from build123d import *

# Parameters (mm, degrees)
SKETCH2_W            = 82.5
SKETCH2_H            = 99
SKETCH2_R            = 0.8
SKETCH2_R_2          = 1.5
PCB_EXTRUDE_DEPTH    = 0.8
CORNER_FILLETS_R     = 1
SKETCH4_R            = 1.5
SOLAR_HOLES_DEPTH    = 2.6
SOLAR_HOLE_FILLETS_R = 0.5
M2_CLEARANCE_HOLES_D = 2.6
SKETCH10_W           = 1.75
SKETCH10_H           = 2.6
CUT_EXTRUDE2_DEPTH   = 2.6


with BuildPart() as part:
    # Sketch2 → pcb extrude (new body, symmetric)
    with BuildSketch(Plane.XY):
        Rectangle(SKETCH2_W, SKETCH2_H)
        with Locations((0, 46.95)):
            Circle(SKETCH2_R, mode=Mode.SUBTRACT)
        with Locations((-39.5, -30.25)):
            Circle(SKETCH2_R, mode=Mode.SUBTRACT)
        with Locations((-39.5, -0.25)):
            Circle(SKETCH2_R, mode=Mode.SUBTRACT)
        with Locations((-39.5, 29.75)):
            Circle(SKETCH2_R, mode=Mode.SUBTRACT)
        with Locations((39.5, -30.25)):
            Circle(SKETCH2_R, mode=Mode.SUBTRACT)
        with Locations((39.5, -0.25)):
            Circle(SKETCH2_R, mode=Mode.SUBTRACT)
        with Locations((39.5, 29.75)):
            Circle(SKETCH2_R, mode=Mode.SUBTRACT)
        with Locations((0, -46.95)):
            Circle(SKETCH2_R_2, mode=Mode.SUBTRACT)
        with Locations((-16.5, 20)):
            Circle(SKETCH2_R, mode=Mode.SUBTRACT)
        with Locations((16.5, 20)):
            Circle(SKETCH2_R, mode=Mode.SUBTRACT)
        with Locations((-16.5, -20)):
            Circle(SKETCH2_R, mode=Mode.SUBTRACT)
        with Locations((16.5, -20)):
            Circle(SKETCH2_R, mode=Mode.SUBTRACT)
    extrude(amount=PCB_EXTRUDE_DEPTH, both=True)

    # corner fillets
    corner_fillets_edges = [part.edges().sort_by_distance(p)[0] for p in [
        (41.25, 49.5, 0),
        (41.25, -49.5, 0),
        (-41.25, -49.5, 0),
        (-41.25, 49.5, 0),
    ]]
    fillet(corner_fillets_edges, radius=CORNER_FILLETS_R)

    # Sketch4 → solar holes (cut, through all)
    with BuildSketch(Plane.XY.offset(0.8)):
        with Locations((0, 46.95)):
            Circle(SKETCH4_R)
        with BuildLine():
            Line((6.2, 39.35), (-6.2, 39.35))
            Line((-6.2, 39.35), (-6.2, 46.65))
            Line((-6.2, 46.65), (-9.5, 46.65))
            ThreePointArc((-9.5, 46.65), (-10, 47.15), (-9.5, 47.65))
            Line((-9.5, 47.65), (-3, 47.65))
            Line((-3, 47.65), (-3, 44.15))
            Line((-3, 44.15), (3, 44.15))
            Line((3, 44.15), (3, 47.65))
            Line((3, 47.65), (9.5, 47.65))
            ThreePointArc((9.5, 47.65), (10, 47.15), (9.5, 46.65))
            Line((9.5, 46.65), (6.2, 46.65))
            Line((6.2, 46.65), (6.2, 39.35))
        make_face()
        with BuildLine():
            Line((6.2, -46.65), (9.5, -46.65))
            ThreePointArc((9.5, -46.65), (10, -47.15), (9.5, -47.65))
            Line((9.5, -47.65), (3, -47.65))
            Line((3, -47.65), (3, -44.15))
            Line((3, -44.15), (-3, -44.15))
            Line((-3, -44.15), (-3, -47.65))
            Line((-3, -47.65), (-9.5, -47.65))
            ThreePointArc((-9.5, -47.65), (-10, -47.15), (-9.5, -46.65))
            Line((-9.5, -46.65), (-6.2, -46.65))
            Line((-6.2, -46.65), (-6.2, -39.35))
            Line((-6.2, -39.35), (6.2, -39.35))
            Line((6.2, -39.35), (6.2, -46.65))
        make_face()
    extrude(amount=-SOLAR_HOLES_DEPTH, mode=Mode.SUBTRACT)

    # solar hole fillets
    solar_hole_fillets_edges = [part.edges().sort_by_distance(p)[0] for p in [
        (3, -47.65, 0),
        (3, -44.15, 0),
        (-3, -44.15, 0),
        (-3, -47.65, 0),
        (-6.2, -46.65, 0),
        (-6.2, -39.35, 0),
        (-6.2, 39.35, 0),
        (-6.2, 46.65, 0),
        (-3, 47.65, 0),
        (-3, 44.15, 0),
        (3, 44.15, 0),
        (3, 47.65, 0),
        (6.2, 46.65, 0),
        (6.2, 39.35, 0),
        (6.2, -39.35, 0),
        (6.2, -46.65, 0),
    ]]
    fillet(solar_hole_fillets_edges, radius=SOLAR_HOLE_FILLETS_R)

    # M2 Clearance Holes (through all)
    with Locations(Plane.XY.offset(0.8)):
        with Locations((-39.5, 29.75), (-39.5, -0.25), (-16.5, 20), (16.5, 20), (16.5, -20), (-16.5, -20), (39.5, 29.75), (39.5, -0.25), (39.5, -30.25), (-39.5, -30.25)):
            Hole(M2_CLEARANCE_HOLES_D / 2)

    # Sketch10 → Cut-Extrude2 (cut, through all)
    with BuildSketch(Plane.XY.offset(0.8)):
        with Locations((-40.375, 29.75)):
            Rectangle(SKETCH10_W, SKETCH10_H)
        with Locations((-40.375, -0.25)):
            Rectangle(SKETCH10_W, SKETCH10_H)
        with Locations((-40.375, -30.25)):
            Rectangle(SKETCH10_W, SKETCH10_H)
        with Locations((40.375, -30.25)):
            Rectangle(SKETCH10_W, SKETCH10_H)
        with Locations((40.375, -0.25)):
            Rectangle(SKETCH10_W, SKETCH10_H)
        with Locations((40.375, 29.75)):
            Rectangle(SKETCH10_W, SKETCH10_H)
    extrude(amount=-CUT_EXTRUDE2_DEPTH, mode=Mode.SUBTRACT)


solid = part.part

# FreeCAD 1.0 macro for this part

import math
import FreeCAD as App
import Part
import Sketcher


def edges_at(feature, points):
    """Names of the edges that pass closest to the given points."""
    edges = feature.Shape.Edges
    near = lambda p: min(range(len(edges)), key=lambda i: edges[i].distToShape(Part.Vertex(*p))[0])
    return sorted({f"Edge{near(p) + 1}" for p in points})


def add_polygon(sketch, points):
    """Adds a closed chain of lines whose ends are joined by coincident constraints."""
    first, n = sketch.GeometryCount, len(points)
    for a, b in zip(points, points[1:] + points[:1]):
        sketch.addGeometry(Part.LineSegment(App.Vector(*a, 0), App.Vector(*b, 0)), False)
    for i in range(n):
        sketch.addConstraint(Sketcher.Constraint("Coincident", first + i, 2, first + (i + 1) % n, 1))

doc = App.newDocument("Part")
params = doc.addObject("Spreadsheet::Sheet", "Params")
for row, (alias, value) in enumerate([
    ("sketch1_diameter", "3 mm"),
    ("sketch1_diameter2", "1.6 mm"),
    ("sketch1_height", "99 mm"),
    ("sketch1_width", "82.5 mm"),
    ("pad1_length", "1.6 mm"),
    ("fillet_radius", "1 mm"),
    ("sketch2_diameter", "3 mm"),
    ("sketch2_radius", "0.5 mm"),
    ("sketch2_width", "6 mm"),
    ("sketch2_width2", "12.4 mm"),
    ("sketch2_width3", "3.3 mm"),
    ("fillet2_radius", "0.5 mm"),
    ("sketch3_diameter", "2.6 mm"),
    ("hole_diameter", "2.6 mm"),
    ("sketch4_height", "2.6 mm"),
    ("sketch4_width", "1.75 mm"),
], start=1):
    params.set(f"A{row}", alias)
    params.set(f"B{row}", "=" + value)
    params.setAlias(f"B{row}", alias)

body = doc.addObject("PartDesign::Body", "Body")

# Sketch on XY plane
sketch1 = body.newObject("Sketcher::SketchObject", "Sketch")
sketch1.AttachmentSupport = (doc.getObject("XY_Plane"), [""])
sketch1.MapMode = "FlatFace"
add_polygon(sketch1, [(-41.25, 49.5), (-41.25, -49.5), (41.25, -49.5), (41.25, 49.5)])  # lines 0-3
sketch1.addGeometry(Part.Circle(App.Vector(-39.5, -30.25, 0), App.Vector(0, 0, 1), 0.8), False)  # 4
sketch1.addGeometry(Part.Circle(App.Vector(-16.5, -20, 0), App.Vector(0, 0, 1), 0.8), False)  # 5
sketch1.addGeometry(Part.Circle(App.Vector(0, -46.95, 0), App.Vector(0, 0, 1), 1.5), False)  # 6
sketch1.addGeometry(Part.Circle(App.Vector(39.5, -30.25, 0), App.Vector(0, 0, 1), 0.8), False)  # 7
sketch1.addGeometry(Part.Circle(App.Vector(16.5, -20, 0), App.Vector(0, 0, 1), 0.8), False)  # 8
sketch1.addGeometry(Part.Circle(App.Vector(-39.5, -0.25, 0), App.Vector(0, 0, 1), 0.8), False)  # 9
sketch1.addGeometry(Part.Circle(App.Vector(-16.5, 20, 0), App.Vector(0, 0, 1), 0.8), False)  # 10
sketch1.addGeometry(Part.Circle(App.Vector(-39.5, 29.75, 0), App.Vector(0, 0, 1), 0.8), False)  # 11
sketch1.addGeometry(Part.Circle(App.Vector(16.5, 20, 0), App.Vector(0, 0, 1), 0.8), False)  # 12
sketch1.addGeometry(Part.Circle(App.Vector(39.5, -0.25, 0), App.Vector(0, 0, 1), 0.8), False)  # 13
sketch1.addGeometry(Part.Circle(App.Vector(0, 46.95, 0), App.Vector(0, 0, 1), 0.8), False)  # 14
sketch1.addGeometry(Part.Circle(App.Vector(39.5, 29.75, 0), App.Vector(0, 0, 1), 0.8), False)  # 15
sketch1.addConstraint(Sketcher.Constraint("Vertical", 0))
sketch1.addConstraint(Sketcher.Constraint("Horizontal", 1))
sketch1.addConstraint(Sketcher.Constraint("Vertical", 2))
sketch1.addConstraint(Sketcher.Constraint("Horizontal", 3))
sketch1.addConstraint(Sketcher.Constraint("Equal", 4, 5))
sketch1.addConstraint(Sketcher.Constraint("Equal", 5, 7))
sketch1.addConstraint(Sketcher.Constraint("Equal", 7, 8))
sketch1.addConstraint(Sketcher.Constraint("Equal", 8, 9))
sketch1.addConstraint(Sketcher.Constraint("Equal", 9, 10))
sketch1.addConstraint(Sketcher.Constraint("Equal", 10, 11))
sketch1.addConstraint(Sketcher.Constraint("Equal", 11, 12))
sketch1.addConstraint(Sketcher.Constraint("Equal", 12, 13))
sketch1.addConstraint(Sketcher.Constraint("Equal", 13, 14))
sketch1.addConstraint(Sketcher.Constraint("Equal", 14, 15))
sketch1.addConstraint(Sketcher.Constraint("Symmetric", 8, 3, 10, 3, -1, 1))
sketch1.addConstraint(Sketcher.Constraint("Symmetric", 5, 3, 12, 3, -1, 1))
sketch1.addConstraint(Sketcher.Constraint("Symmetric", 6, 3, 14, 3, -1, 1))
sketch1.addConstraint(Sketcher.Constraint("Symmetric", 0, 2, 2, 2, -1, 1))
sketch1.addConstraint(Sketcher.Constraint("Symmetric", 4, 3, 7, 3, -2))
sketch1.addConstraint(Sketcher.Constraint("Symmetric", 5, 3, 8, 3, -2))
sketch1.addConstraint(Sketcher.Constraint("Symmetric", 9, 3, 13, 3, -2))
sketch1.addConstraint(Sketcher.Constraint("Symmetric", 11, 3, 15, 3, -2))
sketch1.addConstraint(Sketcher.Constraint("PointOnObject", 6, 3, -2))
sketch1.addConstraint(Sketcher.Constraint("Vertical", 4, 3, 9, 3))
sketch1.addConstraint(Sketcher.Constraint("Vertical", 9, 3, 11, 3))
sketch1.addConstraint(Sketcher.Constraint("Diameter", 6, 3.0))
sketch1.addConstraint(Sketcher.Constraint("Diameter", 4, 1.6))
sketch1.addConstraint(Sketcher.Constraint("DistanceY", 0, 2, 0, 1, 99.0))
sketch1.addConstraint(Sketcher.Constraint("DistanceX", 1, 1, 1, 2, 82.5))
sketch1.addConstraint(Sketcher.Constraint("DistanceY", 5, 3, -1, 1, 20.0))
sketch1.addConstraint(Sketcher.Constraint("DistanceX", 4, 3, 5, 3, 23.0))
sketch1.addConstraint(Sketcher.Constraint("DistanceX", 5, 3, 7, 3, 56.0))
sketch1.addConstraint(Sketcher.Constraint("DistanceY", 4, 3, 9, 3, 30.0))
sketch1.addConstraint(Sketcher.Constraint("DistanceY", 9, 3, 11, 3, 30.0))
sketch1.addConstraint(Sketcher.Constraint("DistanceY", 6, 3, 4, 3, 16.7))
sketch1.addConstraint(Sketcher.Constraint("DistanceY", 11, 3, 14, 3, 17.2))
sketch1.setExpression("Constraints[29]", "Params.sketch1_diameter")
sketch1.setExpression("Constraints[30]", "Params.sketch1_diameter2")
sketch1.setExpression("Constraints[31]", "Params.sketch1_height")
sketch1.setExpression("Constraints[32]", "Params.sketch1_width")
pad1 = body.newObject("PartDesign::Pad", "Pad")
pad1.Profile = sketch1
pad1.setExpression("Length", "Params.pad1_length")
pad1.Midplane = True
doc.recompute()

fillet = body.newObject("PartDesign::Fillet", "Fillet")
fillet.Base = (pad1, edges_at(pad1, [
    (41.25, 49.5, 0),
    (41.25, -49.5, 0),
    (-41.25, -49.5, 0),
    (-41.25, 49.5, 0),
]))
fillet.setExpression("Radius", "Params.fillet_radius")

# Sketch on XY plane
sketch2 = body.newObject("Sketcher::SketchObject", "Sketch001")
sketch2.AttachmentSupport = (doc.getObject("XY_Plane"), [""])
sketch2.MapMode = "FlatFace"
sketch2.AttachmentOffset = App.Placement(App.Vector(0, 0, 0.8), App.Rotation())
sketch2.addGeometry(Part.Circle(App.Vector(0, 46.95, 0), App.Vector(0, 0, 1), 1.5), False)
sketch2.addGeometry(Part.LineSegment(App.Vector(-6.2, 39.35, 0), App.Vector(6.2, 39.35, 0)), False)
sketch2.addGeometry(Part.LineSegment(App.Vector(6.2, 39.35, 0), App.Vector(6.2, 46.65, 0)), False)
sketch2.addGeometry(Part.LineSegment(App.Vector(6.2, 46.65, 0), App.Vector(9.5, 46.65, 0)), False)
sketch2.addGeometry(Part.ArcOfCircle(Part.Circle(App.Vector(9.5, 47.15, 0), App.Vector(0, 0, 1), 0.5), math.radians(-90), math.radians(90)), False)
sketch2.addGeometry(Part.LineSegment(App.Vector(9.5, 47.65, 0), App.Vector(3, 47.65, 0)), False)
sketch2.addGeometry(Part.LineSegment(App.Vector(3, 47.65, 0), App.Vector(3, 44.15, 0)), False)
sketch2.addGeometry(Part.LineSegment(App.Vector(3, 44.15, 0), App.Vector(-3, 44.15, 0)), False)
sketch2.addGeometry(Part.LineSegment(App.Vector(-3, 44.15, 0), App.Vector(-3, 47.65, 0)), False)
sketch2.addGeometry(Part.LineSegment(App.Vector(-3, 47.65, 0), App.Vector(-9.5, 47.65, 0)), False)
sketch2.addGeometry(Part.ArcOfCircle(Part.Circle(App.Vector(-9.5, 47.15, 0), App.Vector(0, 0, 1), 0.5), math.radians(90), math.radians(270)), False)
sketch2.addGeometry(Part.LineSegment(App.Vector(-9.5, 46.65, 0), App.Vector(-6.2, 46.65, 0)), False)
sketch2.addGeometry(Part.LineSegment(App.Vector(-6.2, 46.65, 0), App.Vector(-6.2, 39.35, 0)), False)
sketch2.addGeometry(Part.LineSegment(App.Vector(9.5, -46.65, 0), App.Vector(6.2, -46.65, 0)), False)
sketch2.addGeometry(Part.LineSegment(App.Vector(6.2, -46.65, 0), App.Vector(6.2, -39.35, 0)), False)
sketch2.addGeometry(Part.LineSegment(App.Vector(6.2, -39.35, 0), App.Vector(-6.2, -39.35, 0)), False)
sketch2.addGeometry(Part.LineSegment(App.Vector(-6.2, -39.35, 0), App.Vector(-6.2, -46.65, 0)), False)
sketch2.addGeometry(Part.LineSegment(App.Vector(-6.2, -46.65, 0), App.Vector(-9.5, -46.65, 0)), False)
sketch2.addGeometry(Part.ArcOfCircle(Part.Circle(App.Vector(-9.5, -47.15, 0), App.Vector(0, 0, 1), 0.5), math.radians(90), math.radians(270)), False)
sketch2.addGeometry(Part.LineSegment(App.Vector(-9.5, -47.65, 0), App.Vector(-3, -47.65, 0)), False)
sketch2.addGeometry(Part.LineSegment(App.Vector(-3, -47.65, 0), App.Vector(-3, -44.15, 0)), False)
sketch2.addGeometry(Part.LineSegment(App.Vector(-3, -44.15, 0), App.Vector(3, -44.15, 0)), False)
sketch2.addGeometry(Part.LineSegment(App.Vector(3, -44.15, 0), App.Vector(3, -47.65, 0)), False)
sketch2.addGeometry(Part.LineSegment(App.Vector(3, -47.65, 0), App.Vector(9.5, -47.65, 0)), False)
sketch2.addGeometry(Part.ArcOfCircle(Part.Circle(App.Vector(9.5, -47.15, 0), App.Vector(0, 0, 1), 0.5), math.radians(-90), math.radians(90)), False)
sketch2.addConstraint(Sketcher.Constraint("Coincident", 1, 2, 2, 1))
sketch2.addConstraint(Sketcher.Constraint("Coincident", 2, 2, 3, 1))
sketch2.addConstraint(Sketcher.Constraint("Tangent", 3, 2, 4, 1))
sketch2.addConstraint(Sketcher.Constraint("Tangent", 4, 2, 5, 1))
sketch2.addConstraint(Sketcher.Constraint("Coincident", 5, 2, 6, 1))
sketch2.addConstraint(Sketcher.Constraint("Coincident", 6, 2, 7, 1))
sketch2.addConstraint(Sketcher.Constraint("Coincident", 7, 2, 8, 1))
sketch2.addConstraint(Sketcher.Constraint("Coincident", 8, 2, 9, 1))
sketch2.addConstraint(Sketcher.Constraint("Tangent", 9, 2, 10, 1))
sketch2.addConstraint(Sketcher.Constraint("Tangent", 10, 2, 11, 1))
sketch2.addConstraint(Sketcher.Constraint("Coincident", 11, 2, 12, 1))
sketch2.addConstraint(Sketcher.Constraint("Coincident", 12, 2, 1, 1))
sketch2.addConstraint(Sketcher.Constraint("Coincident", 13, 2, 14, 1))
sketch2.addConstraint(Sketcher.Constraint("Coincident", 14, 2, 15, 1))
sketch2.addConstraint(Sketcher.Constraint("Coincident", 15, 2, 16, 1))
sketch2.addConstraint(Sketcher.Constraint("Coincident", 16, 2, 17, 1))
sketch2.addConstraint(Sketcher.Constraint("Tangent", 17, 2, 18, 1))
sketch2.addConstraint(Sketcher.Constraint("Tangent", 18, 2, 19, 1))
sketch2.addConstraint(Sketcher.Constraint("Coincident", 19, 2, 20, 1))
sketch2.addConstraint(Sketcher.Constraint("Coincident", 20, 2, 21, 1))
sketch2.addConstraint(Sketcher.Constraint("Coincident", 21, 2, 22, 1))
sketch2.addConstraint(Sketcher.Constraint("Coincident", 22, 2, 23, 1))
sketch2.addConstraint(Sketcher.Constraint("Tangent", 23, 2, 24, 1))
sketch2.addConstraint(Sketcher.Constraint("Tangent", 24, 2, 13, 1))
sketch2.addConstraint(Sketcher.Constraint("Horizontal", 1))
sketch2.addConstraint(Sketcher.Constraint("Vertical", 2))
sketch2.addConstraint(Sketcher.Constraint("Horizontal", 3))
sketch2.addConstraint(Sketcher.Constraint("Horizontal", 5))
sketch2.addConstraint(Sketcher.Constraint("Vertical", 6))
sketch2.addConstraint(Sketcher.Constraint("Horizontal", 7))
sketch2.addConstraint(Sketcher.Constraint("Vertical", 8))
sketch2.addConstraint(Sketcher.Constraint("Horizontal", 9))
sketch2.addConstraint(Sketcher.Constraint("Horizontal", 11))
sketch2.addConstraint(Sketcher.Constraint("Vertical", 12))
sketch2.addConstraint(Sketcher.Constraint("Horizontal", 13))
sketch2.addConstraint(Sketcher.Constraint("Vertical", 14))
sketch2.addConstraint(Sketcher.Constraint("Horizontal", 15))
sketch2.addConstraint(Sketcher.Constraint("Vertical", 16))
sketch2.addConstraint(Sketcher.Constraint("Horizontal", 17))
sketch2.addConstraint(Sketcher.Constraint("Horizontal", 19))
sketch2.addConstraint(Sketcher.Constraint("Vertical", 20))
sketch2.addConstraint(Sketcher.Constraint("Horizontal", 21))
sketch2.addConstraint(Sketcher.Constraint("Vertical", 22))
sketch2.addConstraint(Sketcher.Constraint("Horizontal", 23))
sketch2.addConstraint(Sketcher.Constraint("Equal", 4, 10))
sketch2.addConstraint(Sketcher.Constraint("Equal", 10, 18))
sketch2.addConstraint(Sketcher.Constraint("Equal", 18, 24))
sketch2.addConstraint(Sketcher.Constraint("Symmetric", 4, 3, 18, 3, -1, 1))
sketch2.addConstraint(Sketcher.Constraint("Symmetric", 10, 3, 24, 3, -1, 1))
sketch2.addConstraint(Sketcher.Constraint("Symmetric", 12, 2, 14, 2, -1, 1))
sketch2.addConstraint(Sketcher.Constraint("Symmetric", 6, 2, 20, 2, -1, 1))
sketch2.addConstraint(Sketcher.Constraint("Symmetric", 4, 3, 10, 3, -2))
sketch2.addConstraint(Sketcher.Constraint("PointOnObject", 0, 3, -2))
sketch2.addConstraint(Sketcher.Constraint("Vertical", 2, 2, 13, 2))
sketch2.addConstraint(Sketcher.Constraint("Vertical", 12, 2, 15, 2))
sketch2.addConstraint(Sketcher.Constraint("Vertical", 8, 2, 19, 2))
sketch2.addConstraint(Sketcher.Constraint("Vertical", 6, 2, 21, 2))
sketch2.addConstraint(Sketcher.Constraint("Diameter", 0, 3.0))
sketch2.addConstraint(Sketcher.Constraint("Radius", 4, 0.5))
sketch2.addConstraint(Sketcher.Constraint("DistanceX", 7, 2, 7, 1, 6.0))
sketch2.addConstraint(Sketcher.Constraint("DistanceX", 1, 1, 1, 2, 12.4))
sketch2.addConstraint(Sketcher.Constraint("DistanceX", 3, 1, 3, 2, 3.3))
sketch2.addConstraint(Sketcher.Constraint("DistanceY", 2, 1, 2, 2, 7.3))
sketch2.addConstraint(Sketcher.Constraint("DistanceY", 6, 2, 6, 1, 3.5))
sketch2.addConstraint(Sketcher.Constraint("DistanceY", 13, 2, 1, 2, 86.0))
sketch2.addConstraint(Sketcher.Constraint("DistanceY", 0, 3, 4, 3, 0.2))
sketch2.setExpression("Constraints[57]", "Params.sketch2_diameter")
sketch2.setExpression("Constraints[58]", "Params.sketch2_radius")
sketch2.setExpression("Constraints[59]", "Params.sketch2_width")
sketch2.setExpression("Constraints[60]", "Params.sketch2_width2")
sketch2.setExpression("Constraints[61]", "Params.sketch2_width3")
pocket1 = body.newObject("PartDesign::Pocket", "Pocket")
pocket1.Profile = sketch2
pocket1.Type = "ThroughAll"
doc.recompute()

fillet2 = body.newObject("PartDesign::Fillet", "Fillet001")
fillet2.Base = (pocket1, edges_at(pocket1, [
    (3, -47.65, 0),
    (3, -44.15, 0),
    (-3, -44.15, 0),
    (-3, -47.65, 0),
    (-6.2, -46.65, 0),
    (-6.2, -39.35, 0),
    (-6.2, 39.35, 0),
    (-6.2, 46.65, 0),
    (-3, 47.65, 0),
    (-3, 44.15, 0),
    (3, 44.15, 0),
    (3, 47.65, 0),
    (6.2, 46.65, 0),
    (6.2, 39.35, 0),
    (6.2, -39.35, 0),
    (6.2, -46.65, 0),
]))
fillet2.setExpression("Radius", "Params.fillet2_radius")

# Sketch on XY plane
sketch3 = body.newObject("Sketcher::SketchObject", "Sketch002")
sketch3.AttachmentSupport = (doc.getObject("XY_Plane"), [""])
sketch3.MapMode = "FlatFace"
sketch3.AttachmentOffset = App.Placement(App.Vector(0, 0, 0.8), App.Rotation())
sketch3.addGeometry(Part.Circle(App.Vector(-39.5, 29.75, 0), App.Vector(0, 0, 1), 1.3), False)
sketch3.addGeometry(Part.Circle(App.Vector(-39.5, -0.25, 0), App.Vector(0, 0, 1), 1.3), False)
sketch3.addGeometry(Part.Circle(App.Vector(-16.5, 20, 0), App.Vector(0, 0, 1), 1.3), False)
sketch3.addGeometry(Part.Circle(App.Vector(16.5, 20, 0), App.Vector(0, 0, 1), 1.3), False)
sketch3.addGeometry(Part.Circle(App.Vector(16.5, -20, 0), App.Vector(0, 0, 1), 1.3), False)
sketch3.addGeometry(Part.Circle(App.Vector(-16.5, -20, 0), App.Vector(0, 0, 1), 1.3), False)
sketch3.addGeometry(Part.Circle(App.Vector(39.5, 29.75, 0), App.Vector(0, 0, 1), 1.3), False)
sketch3.addGeometry(Part.Circle(App.Vector(39.5, -0.25, 0), App.Vector(0, 0, 1), 1.3), False)
sketch3.addGeometry(Part.Circle(App.Vector(39.5, -30.25, 0), App.Vector(0, 0, 1), 1.3), False)
sketch3.addGeometry(Part.Circle(App.Vector(-39.5, -30.25, 0), App.Vector(0, 0, 1), 1.3), False)
sketch3.addConstraint(Sketcher.Constraint("Equal", 0, 1))
sketch3.addConstraint(Sketcher.Constraint("Equal", 1, 2))
sketch3.addConstraint(Sketcher.Constraint("Equal", 2, 3))
sketch3.addConstraint(Sketcher.Constraint("Equal", 3, 4))
sketch3.addConstraint(Sketcher.Constraint("Equal", 4, 5))
sketch3.addConstraint(Sketcher.Constraint("Equal", 5, 6))
sketch3.addConstraint(Sketcher.Constraint("Equal", 6, 7))
sketch3.addConstraint(Sketcher.Constraint("Equal", 7, 8))
sketch3.addConstraint(Sketcher.Constraint("Equal", 8, 9))
sketch3.addConstraint(Sketcher.Constraint("Symmetric", 2, 3, 4, 3, -1, 1))
sketch3.addConstraint(Sketcher.Constraint("Symmetric", 3, 3, 5, 3, -1, 1))
sketch3.addConstraint(Sketcher.Constraint("Symmetric", 2, 3, 3, 3, -2))
sketch3.addConstraint(Sketcher.Constraint("Symmetric", 0, 3, 6, 3, -2))
sketch3.addConstraint(Sketcher.Constraint("Symmetric", 1, 3, 7, 3, -2))
sketch3.addConstraint(Sketcher.Constraint("Symmetric", 8, 3, 9, 3, -2))
sketch3.addConstraint(Sketcher.Constraint("Vertical", 0, 3, 1, 3))
sketch3.addConstraint(Sketcher.Constraint("Vertical", 7, 3, 8, 3))
sketch3.addConstraint(Sketcher.Constraint("Diameter", 0, 2.6))
sketch3.addConstraint(Sketcher.Constraint("DistanceY", -1, 1, 2, 3, 20.0))
sketch3.addConstraint(Sketcher.Constraint("DistanceY", 1, 3, 0, 3, 30.0))
sketch3.addConstraint(Sketcher.Constraint("DistanceX", 0, 3, 2, 3, 23.0))
sketch3.addConstraint(Sketcher.Constraint("DistanceX", 2, 3, 3, 3, 33.0))
sketch3.addConstraint(Sketcher.Constraint("DistanceY", 8, 3, 7, 3, 30.0))
sketch3.addConstraint(Sketcher.Constraint("DistanceY", -1, 1, 0, 3, 29.75))
sketch3.setExpression("Constraints[17]", "Params.sketch3_diameter")
doc.recompute()
hole = body.newObject("PartDesign::Hole", "Hole")
hole.Profile = sketch3
hole.ThreadType = "None"
hole.setExpression("Diameter", "Params.hole_diameter")
hole.DepthType = "ThroughAll"

# Sketch on XY plane
sketch4 = body.newObject("Sketcher::SketchObject", "Sketch003")
sketch4.AttachmentSupport = (doc.getObject("XY_Plane"), [""])
sketch4.MapMode = "FlatFace"
sketch4.AttachmentOffset = App.Placement(App.Vector(0, 0, 0.8), App.Rotation())
add_polygon(sketch4, [(-41.25, 31.05), (-41.25, 28.45), (-39.5, 28.45), (-39.5, 31.05)])  # lines 0-3
add_polygon(sketch4, [(-41.25, 1.05), (-41.25, -1.55), (-39.5, -1.55), (-39.5, 1.05)])  # lines 4-7
add_polygon(sketch4, [(-41.25, -28.95), (-41.25, -31.55), (-39.5, -31.55), (-39.5, -28.95)])  # lines 8-11
add_polygon(sketch4, [(39.5, -28.95), (39.5, -31.55), (41.25, -31.55), (41.25, -28.95)])  # lines 12-15
add_polygon(sketch4, [(39.5, 1.05), (39.5, -1.55), (41.25, -1.55), (41.25, 1.05)])  # lines 16-19
add_polygon(sketch4, [(39.5, 31.05), (39.5, 28.45), (41.25, 28.45), (41.25, 31.05)])  # lines 20-23
sketch4.addConstraint(Sketcher.Constraint("Vertical", 0))
sketch4.addConstraint(Sketcher.Constraint("Horizontal", 1))
sketch4.addConstraint(Sketcher.Constraint("Vertical", 2))
sketch4.addConstraint(Sketcher.Constraint("Horizontal", 3))
sketch4.addConstraint(Sketcher.Constraint("Vertical", 4))
sketch4.addConstraint(Sketcher.Constraint("Horizontal", 5))
sketch4.addConstraint(Sketcher.Constraint("Vertical", 6))
sketch4.addConstraint(Sketcher.Constraint("Horizontal", 7))
sketch4.addConstraint(Sketcher.Constraint("Vertical", 8))
sketch4.addConstraint(Sketcher.Constraint("Horizontal", 9))
sketch4.addConstraint(Sketcher.Constraint("Vertical", 10))
sketch4.addConstraint(Sketcher.Constraint("Horizontal", 11))
sketch4.addConstraint(Sketcher.Constraint("Vertical", 12))
sketch4.addConstraint(Sketcher.Constraint("Horizontal", 13))
sketch4.addConstraint(Sketcher.Constraint("Vertical", 14))
sketch4.addConstraint(Sketcher.Constraint("Horizontal", 15))
sketch4.addConstraint(Sketcher.Constraint("Vertical", 16))
sketch4.addConstraint(Sketcher.Constraint("Horizontal", 17))
sketch4.addConstraint(Sketcher.Constraint("Vertical", 18))
sketch4.addConstraint(Sketcher.Constraint("Horizontal", 19))
sketch4.addConstraint(Sketcher.Constraint("Vertical", 20))
sketch4.addConstraint(Sketcher.Constraint("Horizontal", 21))
sketch4.addConstraint(Sketcher.Constraint("Vertical", 22))
sketch4.addConstraint(Sketcher.Constraint("Horizontal", 23))
sketch4.addConstraint(Sketcher.Constraint("Symmetric", 9, 2, 12, 2, -2))
sketch4.addConstraint(Sketcher.Constraint("Symmetric", 11, 2, 14, 2, -2))
sketch4.addConstraint(Sketcher.Constraint("Symmetric", 5, 2, 16, 2, -2))
sketch4.addConstraint(Sketcher.Constraint("Symmetric", 7, 2, 18, 2, -2))
sketch4.addConstraint(Sketcher.Constraint("Symmetric", 1, 2, 20, 2, -2))
sketch4.addConstraint(Sketcher.Constraint("Symmetric", 3, 2, 22, 2, -2))
sketch4.addConstraint(Sketcher.Constraint("Vertical", 3, 2, 4, 2))
sketch4.addConstraint(Sketcher.Constraint("Vertical", 2, 2, 5, 2))
sketch4.addConstraint(Sketcher.Constraint("Vertical", 7, 2, 8, 2))
sketch4.addConstraint(Sketcher.Constraint("Vertical", 6, 2, 9, 2))
sketch4.addConstraint(Sketcher.Constraint("Equal", 2, 4))
sketch4.addConstraint(Sketcher.Constraint("Equal", 6, 8))
sketch4.addConstraint(Sketcher.Constraint("DistanceY", 0, 2, 0, 1, 2.6))
sketch4.addConstraint(Sketcher.Constraint("DistanceY", 4, 2, 0, 2, 30.0))
sketch4.addConstraint(Sketcher.Constraint("DistanceY", 8, 2, 4, 2, 30.0))
sketch4.addConstraint(Sketcher.Constraint("DistanceX", 9, 2, 12, 2, 79.0))
sketch4.addConstraint(Sketcher.Constraint("DistanceX", 1, 1, 1, 2, 1.75))
sketch4.addConstraint(Sketcher.Constraint("DistanceY", -1, 1, 0, 2, 28.45))
sketch4.setExpression("Constraints[60]", "Params.sketch4_height")
sketch4.setExpression("Constraints[64]", "Params.sketch4_width")
pocket2 = body.newObject("PartDesign::Pocket", "Pocket001")
pocket2.Profile = sketch4
pocket2.Type = "ThroughAll"

doc.recompute()
